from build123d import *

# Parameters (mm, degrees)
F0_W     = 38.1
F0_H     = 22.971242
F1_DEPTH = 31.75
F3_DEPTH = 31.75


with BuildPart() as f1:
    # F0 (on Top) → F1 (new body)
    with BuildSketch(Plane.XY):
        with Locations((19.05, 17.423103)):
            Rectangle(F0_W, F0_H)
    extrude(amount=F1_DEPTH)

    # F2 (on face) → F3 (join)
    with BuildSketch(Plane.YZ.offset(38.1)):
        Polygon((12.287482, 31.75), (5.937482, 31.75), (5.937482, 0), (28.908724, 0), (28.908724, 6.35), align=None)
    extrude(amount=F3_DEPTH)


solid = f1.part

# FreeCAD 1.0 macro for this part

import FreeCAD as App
import Part
import Sketcher

V = App.Vector
Q = App.Units.Quantity


def add_polygon(sketch, points):
    """Adds a closed chain of lines whose ends are joined by coincident constraints."""
    first, n = sketch.GeometryCount, len(points)
    for a, b in zip(points, points[1:] + points[:1]):
        sketch.addGeometry(Part.LineSegment(App.Vector(*a, 0), App.Vector(*b, 0)), False)
    for i in range(n):
        sketch.addConstraint(Sketcher.Constraint("Coincident", first + i, 2, first + (i + 1) % n, 1))

doc = App.newDocument("Part")
body = doc.addObject("PartDesign::Body", "Body")

# Sketch on XY plane
sketch1 = doc.addObject("Sketcher::SketchObject", "Sketch")
body.addObject(sketch1)
sketch1.AttachmentSupport = (doc.XY_Plane, [""])
sketch1.MapMode = "FlatFace"
add_polygon(sketch1, [(0, 29), (0, 6), (38, 6), (38, 29)])  # lines 0-3
sketch1.addConstraint([
    Sketcher.Constraint("Vertical", 0),
    Sketcher.Constraint("Horizontal", 1),
    Sketcher.Constraint("Vertical", 2),
    Sketcher.Constraint("Horizontal", 3),
    Sketcher.Constraint("PointOnObject", 0, 2, -2),
    Sketcher.Constraint("DistanceX", 1, 1, 1, 2, Q("1.5 in")),
    Sketcher.Constraint("DistanceY", 0, 2, 0, 1, Q("22.971242 mm")),
    Sketcher.Constraint("DistanceY", -1, 1, 0, 2, Q("5.937482 mm")),
])
pad1 = doc.addObject("PartDesign::Pad", "Pad")
body.addObject(pad1)
pad1.Profile = sketch1
pad1.Length = Q("1.25 in")

# Sketch on YZ plane
sketch2 = doc.addObject("Sketcher::SketchObject", "Sketch001")
body.addObject(sketch2)
sketch2.AttachmentSupport = (doc.YZ_Plane, [""])
sketch2.MapMode = "FlatFace"
sketch2.AttachmentOffset = App.Placement(V(0, 0, 1.5 * 25.4), App.Rotation())
add_polygon(sketch2, [(12, 32), (6, 32), (6, 0), (29, 0), (29, 6)])  # lines 0-4
sketch2.addConstraint([
    Sketcher.Constraint("Horizontal", 0),
    Sketcher.Constraint("Vertical", 1),
    Sketcher.Constraint("Horizontal", 2),
    Sketcher.Constraint("Vertical", 3),
    Sketcher.Constraint("PointOnObject", 1, 2, -1),
    Sketcher.Constraint("Equal", 0, 3),
    Sketcher.Constraint("DistanceY", 3, 2, 0, 2, Q("1 in")),
    Sketcher.Constraint("DistanceX", 0, 2, 0, 1, Q("0.25 in")),
    Sketcher.Constraint("DistanceX", 2, 1, 2, 2, Q("22.971242 mm")),
    Sketcher.Constraint("DistanceX", -1, 1, 0, 2, Q("5.937482 mm")),
])
pad2 = doc.addObject("PartDesign::Pad", "Pad001")
body.addObject(pad2)
pad2.Profile = sketch2
pad2.Length = Q("1.25 in")

doc.recompute()
